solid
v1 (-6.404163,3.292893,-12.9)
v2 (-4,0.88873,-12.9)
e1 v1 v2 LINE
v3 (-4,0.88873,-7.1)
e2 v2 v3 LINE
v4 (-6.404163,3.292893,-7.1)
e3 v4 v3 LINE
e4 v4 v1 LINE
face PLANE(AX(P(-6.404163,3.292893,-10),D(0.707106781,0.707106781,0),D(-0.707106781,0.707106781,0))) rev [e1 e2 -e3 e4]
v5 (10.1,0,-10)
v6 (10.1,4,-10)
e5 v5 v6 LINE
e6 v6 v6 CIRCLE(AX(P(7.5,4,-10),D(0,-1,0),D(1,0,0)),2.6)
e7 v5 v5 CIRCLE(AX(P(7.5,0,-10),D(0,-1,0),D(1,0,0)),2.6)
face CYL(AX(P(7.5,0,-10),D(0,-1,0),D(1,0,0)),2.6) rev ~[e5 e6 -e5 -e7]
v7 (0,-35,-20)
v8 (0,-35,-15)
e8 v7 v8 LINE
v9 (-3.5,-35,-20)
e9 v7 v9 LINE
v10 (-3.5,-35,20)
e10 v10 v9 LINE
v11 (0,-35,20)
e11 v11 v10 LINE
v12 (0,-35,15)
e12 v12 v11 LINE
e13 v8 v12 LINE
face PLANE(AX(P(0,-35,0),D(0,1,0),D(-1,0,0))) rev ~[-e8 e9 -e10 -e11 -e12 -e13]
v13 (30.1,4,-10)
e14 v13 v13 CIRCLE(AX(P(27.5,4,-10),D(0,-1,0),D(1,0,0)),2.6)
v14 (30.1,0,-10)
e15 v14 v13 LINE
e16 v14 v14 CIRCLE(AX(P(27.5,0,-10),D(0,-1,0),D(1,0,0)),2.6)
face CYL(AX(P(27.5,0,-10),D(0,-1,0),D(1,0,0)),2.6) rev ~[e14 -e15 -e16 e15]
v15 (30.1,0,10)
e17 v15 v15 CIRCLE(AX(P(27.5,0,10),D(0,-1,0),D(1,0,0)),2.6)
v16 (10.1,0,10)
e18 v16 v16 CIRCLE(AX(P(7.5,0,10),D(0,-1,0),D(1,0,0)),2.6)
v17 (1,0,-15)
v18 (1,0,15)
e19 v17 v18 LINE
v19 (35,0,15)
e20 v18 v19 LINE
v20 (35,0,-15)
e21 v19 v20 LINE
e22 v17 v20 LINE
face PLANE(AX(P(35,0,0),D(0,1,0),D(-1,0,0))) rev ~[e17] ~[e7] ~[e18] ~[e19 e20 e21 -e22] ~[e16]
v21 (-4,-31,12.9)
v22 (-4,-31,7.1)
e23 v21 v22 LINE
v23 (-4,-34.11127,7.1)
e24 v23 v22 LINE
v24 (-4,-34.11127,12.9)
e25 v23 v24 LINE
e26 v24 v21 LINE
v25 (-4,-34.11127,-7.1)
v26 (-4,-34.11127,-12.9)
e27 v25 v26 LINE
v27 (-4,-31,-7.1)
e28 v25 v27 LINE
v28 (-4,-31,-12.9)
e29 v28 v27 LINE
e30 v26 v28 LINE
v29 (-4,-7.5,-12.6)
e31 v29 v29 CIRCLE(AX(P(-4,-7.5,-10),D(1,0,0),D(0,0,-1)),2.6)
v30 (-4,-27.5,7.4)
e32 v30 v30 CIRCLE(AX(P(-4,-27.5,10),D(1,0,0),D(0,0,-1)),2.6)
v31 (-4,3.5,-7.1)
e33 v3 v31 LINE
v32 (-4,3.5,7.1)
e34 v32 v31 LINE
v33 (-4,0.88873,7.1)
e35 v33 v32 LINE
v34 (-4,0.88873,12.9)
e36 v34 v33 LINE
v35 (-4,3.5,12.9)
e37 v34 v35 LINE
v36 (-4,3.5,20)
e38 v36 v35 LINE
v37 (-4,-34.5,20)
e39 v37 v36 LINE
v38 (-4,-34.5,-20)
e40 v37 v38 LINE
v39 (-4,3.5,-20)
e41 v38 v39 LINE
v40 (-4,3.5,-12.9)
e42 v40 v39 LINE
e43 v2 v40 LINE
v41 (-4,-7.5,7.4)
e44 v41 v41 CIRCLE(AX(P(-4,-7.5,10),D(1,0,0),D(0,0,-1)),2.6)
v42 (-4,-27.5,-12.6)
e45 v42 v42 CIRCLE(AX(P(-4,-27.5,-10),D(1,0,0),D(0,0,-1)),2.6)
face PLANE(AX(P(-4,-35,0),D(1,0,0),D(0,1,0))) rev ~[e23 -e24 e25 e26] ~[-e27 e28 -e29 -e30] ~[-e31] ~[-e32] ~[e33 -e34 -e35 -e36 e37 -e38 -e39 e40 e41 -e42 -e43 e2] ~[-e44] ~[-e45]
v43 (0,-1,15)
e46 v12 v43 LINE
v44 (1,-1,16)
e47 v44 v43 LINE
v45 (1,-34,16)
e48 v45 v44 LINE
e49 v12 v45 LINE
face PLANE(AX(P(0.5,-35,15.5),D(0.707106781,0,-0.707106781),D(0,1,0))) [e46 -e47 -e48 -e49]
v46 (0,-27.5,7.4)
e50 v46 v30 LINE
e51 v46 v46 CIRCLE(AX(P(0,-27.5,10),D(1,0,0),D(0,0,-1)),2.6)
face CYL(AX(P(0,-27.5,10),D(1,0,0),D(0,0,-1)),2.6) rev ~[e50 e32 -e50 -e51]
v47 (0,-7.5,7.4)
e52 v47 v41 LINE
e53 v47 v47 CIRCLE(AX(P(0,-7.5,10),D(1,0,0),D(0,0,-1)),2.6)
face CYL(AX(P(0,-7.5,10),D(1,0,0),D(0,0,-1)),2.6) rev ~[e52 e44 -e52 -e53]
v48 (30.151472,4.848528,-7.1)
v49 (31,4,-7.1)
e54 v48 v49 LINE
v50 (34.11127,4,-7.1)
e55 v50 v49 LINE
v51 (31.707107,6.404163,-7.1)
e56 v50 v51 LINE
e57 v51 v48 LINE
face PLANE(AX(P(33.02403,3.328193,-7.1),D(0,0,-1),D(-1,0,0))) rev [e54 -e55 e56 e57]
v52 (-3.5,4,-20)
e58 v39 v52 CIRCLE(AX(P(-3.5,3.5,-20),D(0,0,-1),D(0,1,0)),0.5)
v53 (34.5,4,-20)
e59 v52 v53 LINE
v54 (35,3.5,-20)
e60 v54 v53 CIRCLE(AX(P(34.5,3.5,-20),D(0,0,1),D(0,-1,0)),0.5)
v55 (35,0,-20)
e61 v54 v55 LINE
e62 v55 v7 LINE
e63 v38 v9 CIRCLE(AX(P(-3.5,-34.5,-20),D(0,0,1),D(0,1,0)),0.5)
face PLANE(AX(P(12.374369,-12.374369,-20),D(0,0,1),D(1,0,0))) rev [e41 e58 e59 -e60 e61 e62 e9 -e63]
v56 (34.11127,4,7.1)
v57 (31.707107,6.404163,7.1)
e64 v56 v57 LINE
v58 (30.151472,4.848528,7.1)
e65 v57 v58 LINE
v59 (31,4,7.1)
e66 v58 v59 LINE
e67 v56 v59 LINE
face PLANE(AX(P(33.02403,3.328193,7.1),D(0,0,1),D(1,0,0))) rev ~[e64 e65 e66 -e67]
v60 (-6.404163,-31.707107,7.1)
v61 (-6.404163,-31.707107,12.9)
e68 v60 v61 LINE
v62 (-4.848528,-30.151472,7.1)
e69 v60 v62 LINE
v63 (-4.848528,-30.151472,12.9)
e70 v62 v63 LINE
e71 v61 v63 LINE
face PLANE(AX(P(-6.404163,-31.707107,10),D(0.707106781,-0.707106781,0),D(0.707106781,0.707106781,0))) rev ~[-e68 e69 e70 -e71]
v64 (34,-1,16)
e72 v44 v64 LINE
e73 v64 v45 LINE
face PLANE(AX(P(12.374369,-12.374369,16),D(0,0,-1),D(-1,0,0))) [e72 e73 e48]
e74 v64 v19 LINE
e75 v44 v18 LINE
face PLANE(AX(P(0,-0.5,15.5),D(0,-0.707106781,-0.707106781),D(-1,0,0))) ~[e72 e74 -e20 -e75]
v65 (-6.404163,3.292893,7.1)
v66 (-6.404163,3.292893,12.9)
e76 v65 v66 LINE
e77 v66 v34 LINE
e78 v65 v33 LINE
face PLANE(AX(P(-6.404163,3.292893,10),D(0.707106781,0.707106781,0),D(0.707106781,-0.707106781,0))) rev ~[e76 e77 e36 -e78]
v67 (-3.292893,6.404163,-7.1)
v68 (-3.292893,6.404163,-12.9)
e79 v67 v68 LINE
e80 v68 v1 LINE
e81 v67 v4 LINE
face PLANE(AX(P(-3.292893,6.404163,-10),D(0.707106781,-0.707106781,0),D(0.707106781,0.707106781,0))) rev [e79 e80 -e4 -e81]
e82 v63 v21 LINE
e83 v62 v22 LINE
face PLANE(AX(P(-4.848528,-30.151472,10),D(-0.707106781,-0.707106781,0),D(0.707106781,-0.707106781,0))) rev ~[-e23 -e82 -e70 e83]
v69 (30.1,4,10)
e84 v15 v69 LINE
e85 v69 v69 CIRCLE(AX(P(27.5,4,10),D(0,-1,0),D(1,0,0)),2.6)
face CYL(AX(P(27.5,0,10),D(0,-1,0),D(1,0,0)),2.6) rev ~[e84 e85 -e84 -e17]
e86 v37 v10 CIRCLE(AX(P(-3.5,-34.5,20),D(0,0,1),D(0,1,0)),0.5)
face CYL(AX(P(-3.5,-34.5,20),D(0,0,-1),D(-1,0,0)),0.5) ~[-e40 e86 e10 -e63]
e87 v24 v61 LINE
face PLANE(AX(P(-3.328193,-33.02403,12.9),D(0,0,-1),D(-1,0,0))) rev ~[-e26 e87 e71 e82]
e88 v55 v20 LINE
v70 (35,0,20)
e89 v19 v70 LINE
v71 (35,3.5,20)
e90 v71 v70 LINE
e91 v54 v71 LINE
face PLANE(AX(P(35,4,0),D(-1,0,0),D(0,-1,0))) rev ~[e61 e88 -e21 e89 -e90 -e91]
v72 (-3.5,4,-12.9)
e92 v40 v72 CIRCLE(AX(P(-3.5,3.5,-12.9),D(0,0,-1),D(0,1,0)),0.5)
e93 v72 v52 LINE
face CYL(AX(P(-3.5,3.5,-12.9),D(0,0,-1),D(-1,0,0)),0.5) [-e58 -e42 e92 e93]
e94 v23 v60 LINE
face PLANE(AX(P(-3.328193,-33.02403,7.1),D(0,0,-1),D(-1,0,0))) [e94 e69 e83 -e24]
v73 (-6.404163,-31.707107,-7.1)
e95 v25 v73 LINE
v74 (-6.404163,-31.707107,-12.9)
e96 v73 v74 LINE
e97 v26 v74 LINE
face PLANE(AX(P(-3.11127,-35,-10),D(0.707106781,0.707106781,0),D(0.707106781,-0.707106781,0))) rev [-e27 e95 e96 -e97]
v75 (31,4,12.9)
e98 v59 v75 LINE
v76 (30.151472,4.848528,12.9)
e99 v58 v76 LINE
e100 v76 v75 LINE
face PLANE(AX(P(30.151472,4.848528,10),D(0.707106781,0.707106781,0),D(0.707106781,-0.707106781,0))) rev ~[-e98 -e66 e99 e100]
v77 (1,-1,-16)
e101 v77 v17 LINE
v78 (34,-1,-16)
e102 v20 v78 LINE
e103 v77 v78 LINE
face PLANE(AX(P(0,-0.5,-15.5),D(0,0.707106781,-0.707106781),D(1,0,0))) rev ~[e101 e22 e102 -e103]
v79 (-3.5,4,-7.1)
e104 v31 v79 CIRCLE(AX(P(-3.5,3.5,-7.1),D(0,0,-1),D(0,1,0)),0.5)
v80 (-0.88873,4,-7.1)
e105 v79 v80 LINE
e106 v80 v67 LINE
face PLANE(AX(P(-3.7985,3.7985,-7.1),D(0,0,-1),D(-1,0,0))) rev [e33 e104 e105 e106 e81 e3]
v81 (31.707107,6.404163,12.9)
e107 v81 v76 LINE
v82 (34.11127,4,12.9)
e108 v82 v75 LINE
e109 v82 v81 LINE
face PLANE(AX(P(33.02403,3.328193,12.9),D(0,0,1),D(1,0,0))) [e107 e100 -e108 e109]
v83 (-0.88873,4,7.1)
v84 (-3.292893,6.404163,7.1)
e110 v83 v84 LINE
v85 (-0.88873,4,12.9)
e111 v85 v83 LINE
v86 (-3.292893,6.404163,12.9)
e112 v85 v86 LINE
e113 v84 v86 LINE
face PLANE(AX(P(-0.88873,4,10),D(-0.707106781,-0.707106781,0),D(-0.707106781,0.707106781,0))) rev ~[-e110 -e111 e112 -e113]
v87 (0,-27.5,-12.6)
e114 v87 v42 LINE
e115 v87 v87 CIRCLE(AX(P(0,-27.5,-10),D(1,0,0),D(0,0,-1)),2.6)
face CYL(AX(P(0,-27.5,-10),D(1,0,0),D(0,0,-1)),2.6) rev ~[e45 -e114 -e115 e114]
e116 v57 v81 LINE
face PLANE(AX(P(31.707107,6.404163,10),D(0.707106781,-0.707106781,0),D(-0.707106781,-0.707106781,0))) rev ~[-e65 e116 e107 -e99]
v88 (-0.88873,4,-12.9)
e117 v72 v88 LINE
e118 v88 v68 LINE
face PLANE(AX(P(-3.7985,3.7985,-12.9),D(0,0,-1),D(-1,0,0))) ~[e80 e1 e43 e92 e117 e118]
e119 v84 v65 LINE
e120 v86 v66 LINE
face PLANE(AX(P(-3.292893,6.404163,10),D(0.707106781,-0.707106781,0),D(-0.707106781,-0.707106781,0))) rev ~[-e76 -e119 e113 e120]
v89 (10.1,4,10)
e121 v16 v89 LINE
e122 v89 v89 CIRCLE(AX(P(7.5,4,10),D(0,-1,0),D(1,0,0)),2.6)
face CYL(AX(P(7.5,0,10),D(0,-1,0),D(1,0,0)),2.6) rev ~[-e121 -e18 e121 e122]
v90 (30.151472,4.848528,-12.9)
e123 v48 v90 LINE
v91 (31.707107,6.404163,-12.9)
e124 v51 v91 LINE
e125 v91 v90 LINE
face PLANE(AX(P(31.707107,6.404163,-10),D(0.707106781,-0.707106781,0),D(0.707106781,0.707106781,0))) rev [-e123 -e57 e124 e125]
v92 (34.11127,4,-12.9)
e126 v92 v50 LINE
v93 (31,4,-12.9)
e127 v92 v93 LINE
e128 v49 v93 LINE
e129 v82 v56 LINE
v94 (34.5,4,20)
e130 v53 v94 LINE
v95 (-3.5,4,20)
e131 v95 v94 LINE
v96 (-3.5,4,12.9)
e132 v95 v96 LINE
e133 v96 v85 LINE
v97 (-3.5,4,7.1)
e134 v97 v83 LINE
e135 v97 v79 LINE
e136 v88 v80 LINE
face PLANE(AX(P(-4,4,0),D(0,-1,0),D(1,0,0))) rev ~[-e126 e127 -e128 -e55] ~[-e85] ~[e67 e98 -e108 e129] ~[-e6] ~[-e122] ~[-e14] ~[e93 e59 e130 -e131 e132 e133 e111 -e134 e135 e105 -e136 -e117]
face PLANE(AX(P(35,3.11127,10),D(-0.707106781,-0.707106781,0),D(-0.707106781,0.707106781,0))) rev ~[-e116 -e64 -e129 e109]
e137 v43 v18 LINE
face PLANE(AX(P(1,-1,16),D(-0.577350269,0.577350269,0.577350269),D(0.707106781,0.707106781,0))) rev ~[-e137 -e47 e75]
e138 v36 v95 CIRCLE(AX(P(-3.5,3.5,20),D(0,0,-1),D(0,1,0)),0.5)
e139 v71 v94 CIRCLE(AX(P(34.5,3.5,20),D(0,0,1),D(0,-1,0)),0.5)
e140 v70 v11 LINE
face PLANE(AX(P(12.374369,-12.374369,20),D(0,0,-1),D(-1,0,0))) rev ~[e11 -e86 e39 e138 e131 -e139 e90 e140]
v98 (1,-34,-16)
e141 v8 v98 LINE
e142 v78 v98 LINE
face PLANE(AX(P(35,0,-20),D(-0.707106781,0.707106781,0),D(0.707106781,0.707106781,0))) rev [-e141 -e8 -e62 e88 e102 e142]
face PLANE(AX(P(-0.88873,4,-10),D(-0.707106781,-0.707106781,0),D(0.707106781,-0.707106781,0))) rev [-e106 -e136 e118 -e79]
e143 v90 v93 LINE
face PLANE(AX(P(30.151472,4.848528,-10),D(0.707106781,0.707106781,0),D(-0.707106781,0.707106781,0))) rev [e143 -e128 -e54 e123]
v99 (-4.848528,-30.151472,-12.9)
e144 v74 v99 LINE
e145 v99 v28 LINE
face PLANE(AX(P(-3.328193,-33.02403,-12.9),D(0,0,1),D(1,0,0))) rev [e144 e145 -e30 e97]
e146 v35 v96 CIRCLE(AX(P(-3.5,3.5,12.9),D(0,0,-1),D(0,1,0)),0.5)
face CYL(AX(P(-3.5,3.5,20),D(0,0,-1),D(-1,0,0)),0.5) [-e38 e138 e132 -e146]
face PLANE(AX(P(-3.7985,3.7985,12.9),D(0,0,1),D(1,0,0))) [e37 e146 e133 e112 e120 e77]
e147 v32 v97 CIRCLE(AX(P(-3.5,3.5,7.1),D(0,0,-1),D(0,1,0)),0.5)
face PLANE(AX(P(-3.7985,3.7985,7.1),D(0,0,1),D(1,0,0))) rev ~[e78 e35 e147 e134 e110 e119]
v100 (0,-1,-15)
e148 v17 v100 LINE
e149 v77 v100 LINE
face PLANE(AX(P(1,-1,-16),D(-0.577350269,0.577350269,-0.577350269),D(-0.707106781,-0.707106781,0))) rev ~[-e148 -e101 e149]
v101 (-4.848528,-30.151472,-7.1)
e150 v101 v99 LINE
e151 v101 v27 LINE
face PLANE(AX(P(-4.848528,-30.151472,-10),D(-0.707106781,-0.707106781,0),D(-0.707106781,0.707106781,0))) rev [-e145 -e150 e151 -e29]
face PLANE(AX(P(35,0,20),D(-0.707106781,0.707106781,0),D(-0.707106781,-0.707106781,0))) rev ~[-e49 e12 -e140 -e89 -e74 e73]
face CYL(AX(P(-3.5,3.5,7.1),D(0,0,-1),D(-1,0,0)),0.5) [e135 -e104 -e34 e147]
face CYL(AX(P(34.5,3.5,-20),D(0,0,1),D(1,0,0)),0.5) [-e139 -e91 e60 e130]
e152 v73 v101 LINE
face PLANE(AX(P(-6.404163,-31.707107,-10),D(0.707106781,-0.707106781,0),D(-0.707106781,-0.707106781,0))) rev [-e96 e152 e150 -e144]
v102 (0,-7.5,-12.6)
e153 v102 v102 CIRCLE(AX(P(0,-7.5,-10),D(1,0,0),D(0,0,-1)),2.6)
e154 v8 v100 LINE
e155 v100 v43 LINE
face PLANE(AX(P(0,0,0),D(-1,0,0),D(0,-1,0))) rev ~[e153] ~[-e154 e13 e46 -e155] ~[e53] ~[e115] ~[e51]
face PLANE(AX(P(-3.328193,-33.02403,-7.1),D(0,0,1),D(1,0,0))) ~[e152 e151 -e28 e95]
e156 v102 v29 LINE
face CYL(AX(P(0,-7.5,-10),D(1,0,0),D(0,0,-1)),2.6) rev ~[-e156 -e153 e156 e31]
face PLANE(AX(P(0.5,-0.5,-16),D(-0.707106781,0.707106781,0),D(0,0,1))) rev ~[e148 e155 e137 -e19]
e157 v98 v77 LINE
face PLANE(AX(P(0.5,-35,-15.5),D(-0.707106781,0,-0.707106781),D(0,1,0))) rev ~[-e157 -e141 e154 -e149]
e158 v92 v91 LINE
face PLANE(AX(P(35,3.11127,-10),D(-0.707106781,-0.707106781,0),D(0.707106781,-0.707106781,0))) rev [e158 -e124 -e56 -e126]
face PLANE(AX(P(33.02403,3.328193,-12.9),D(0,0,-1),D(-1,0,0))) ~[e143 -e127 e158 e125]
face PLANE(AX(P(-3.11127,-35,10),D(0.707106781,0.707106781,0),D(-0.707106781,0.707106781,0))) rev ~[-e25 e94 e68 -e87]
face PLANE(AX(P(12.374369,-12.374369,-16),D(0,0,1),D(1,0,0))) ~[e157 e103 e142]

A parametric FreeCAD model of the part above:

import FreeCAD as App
import Part
import Sketcher
from FreeCAD import Vector
Q = App.Units.Quantity


def edges_at(feature, points):
    """Names of the edges that pass closest to the given points."""
    edges = feature.Shape.Edges
    near = lambda p: min(range(len(edges)), key=lambda i: edges[i].distToShape(Part.Vertex(*p))[0])
    return sorted({f"Edge{near(p) + 1}" for p in points})

doc = App.newDocument("Part")
body = doc.addObject("PartDesign::Body", "Body")

sketch1 = body.newObject("Sketcher::SketchObject", "Sketch")
sketch1.AttachmentSupport = (doc.getObject("XY_Plane"), [""])
sketch1.MapMode = "FlatFace"
sketch1.addGeometry([
    Part.LineSegment(Vector(0, -35, 0), Vector(0, 0, 0)),
    Part.LineSegment(Vector(0, 0, 0), Vector(35, 0, 0)),
    Part.LineSegment(Vector(35, 0, 0), Vector(35, 4, 0)),
    Part.LineSegment(Vector(35, 4, 0), Vector(-4, 4, 0)),
    Part.LineSegment(Vector(-4, 4, 0), Vector(-4, -35, 0)),
    Part.LineSegment(Vector(-4, -35, 0), Vector(0, -35, 0)),
], False)
sketch1.addConstraint([
    Sketcher.Constraint("Coincident", 0, 2, 1, 1),
    Sketcher.Constraint("Coincident", 1, 2, 2, 1),
    Sketcher.Constraint("Coincident", 2, 2, 3, 1),
    Sketcher.Constraint("Coincident", 3, 2, 4, 1),
    Sketcher.Constraint("Coincident", 4, 2, 5, 1),
    Sketcher.Constraint("Coincident", 5, 2, 0, 1),
    Sketcher.Constraint("Vertical", 0),
    Sketcher.Constraint("Horizontal", 1),
    Sketcher.Constraint("Vertical", 2),
    Sketcher.Constraint("Horizontal", 3),
    Sketcher.Constraint("Vertical", 4),
    Sketcher.Constraint("Horizontal", 5),
    Sketcher.Constraint("Coincident", 0, 2, -1, 1),
    Sketcher.Constraint("Equal", 1, 0),
    Sketcher.Constraint("Equal", 5, 2),
    Sketcher.Constraint("DistanceX", 1, 1, 1, 2, Q("35 mm")),
    Sketcher.Constraint("DistanceX", 3, 2, 3, 1, Q("39 mm")),
])
pad1 = body.newObject("PartDesign::Pad", "Pad")
pad1.Profile = sketch1
pad1.Length = 40
pad1.Midplane = True

sketch2 = body.newObject("Sketcher::SketchObject", "Sketch001")
sketch2.AttachmentSupport = (doc.getObject("XY_Plane"), [""])
sketch2.MapMode = "FlatFace"
sketch2.AttachmentOffset = App.Placement(Vector(0, 0, 20), App.Rotation())
sketch2.addGeometry([
    Part.LineSegment(Vector(0, 0, 0), Vector(0, -35, 0)),
    Part.LineSegment(Vector(0, -35, 0), Vector(35, 0, 0)),
    Part.LineSegment(Vector(35, 0, 0), Vector(0, 0, 0)),
], False)
sketch2.addConstraint([
    Sketcher.Constraint("Coincident", 0, 2, 1, 1),
    Sketcher.Constraint("Coincident", 1, 2, 2, 1),
    Sketcher.Constraint("Coincident", 2, 2, 0, 1),
    Sketcher.Constraint("Vertical", 0),
    Sketcher.Constraint("Horizontal", 2),
    Sketcher.Constraint("Coincident", 2, 2, -1, 1),
    Sketcher.Constraint("Equal", 2, 0),
    Sketcher.Constraint("DistanceX", 2, 2, 2, 1, Q("35 mm")),
])
pad2 = body.newObject("PartDesign::Pad", "Pad001")
pad2.Profile = sketch2
pad2.Length = 4
pad2.Reversed = True
doc.recompute()

mirrored = body.newObject("PartDesign::Mirrored", "Mirrored")
mirrored.Originals = [pad2]
mirrored.MirrorPlane = (doc.getObject("XY_Plane"), [""])
body.Tip = mirrored

sketch3 = body.newObject("Sketcher::SketchObject", "Sketch002")
sketch3.AttachmentSupport = (doc.getObject("YZ_Plane"), [""])
sketch3.MapMode = "FlatFace"
sketch3.addGeometry([
    Part.Circle(Vector(-27.5, 10, 0), Vector(0, 0, 1), 2.6),
    Part.Circle(Vector(-27.5, -10, 0), Vector(0, 0, 1), 2.6),
    Part.Circle(Vector(-7.5, -10, 0), Vector(0, 0, 1), 2.6),
    Part.Circle(Vector(-7.5, 10, 0), Vector(0, 0, 1), 2.6),
], False)
sketch3.addConstraint([
    Sketcher.Constraint("Equal", 0, 1),
    Sketcher.Constraint("Equal", 1, 2),
    Sketcher.Constraint("Equal", 2, 3),
    Sketcher.Constraint("Symmetric", 0, 3, 1, 3, -1),
    Sketcher.Constraint("Symmetric", 2, 3, 3, 3, -1),
    Sketcher.Constraint("Horizontal", 1, 3, 2, 3),
    Sketcher.Constraint("Diameter", 0, Q("5.2 mm")),
    Sketcher.Constraint("DistanceY", -1, 1, 0, 3, Q("10 mm")),
    Sketcher.Constraint("DistanceX", 1, 3, 2, 3, Q("20 mm")),
    Sketcher.Constraint("DistanceX", 0, 3, -1, 1, Q("27.5 mm")),
])
pocket1 = body.newObject("PartDesign::Pocket", "Pocket")
pocket1.Profile = sketch3
pocket1.Type = "ThroughAll"

sketch4 = body.newObject("Sketcher::SketchObject", "Sketch003")
sketch4.AttachmentSupport = (doc.getObject("XZ_Plane"), [""])
sketch4.MapMode = "FlatFace"
sketch4.addGeometry([
    Part.Circle(Vector(27.5, -10, 0), Vector(0, 0, 1), 2.6),
    Part.Circle(Vector(7.5, -10, 0), Vector(0, 0, 1), 2.6),
    Part.Circle(Vector(7.5, 10, 0), Vector(0, 0, 1), 2.6),
    Part.Circle(Vector(27.5, 10, 0), Vector(0, 0, 1), 2.6),
], False)
sketch4.addConstraint([
    Sketcher.Constraint("Equal", 0, 1),
    Sketcher.Constraint("Equal", 1, 2),
    Sketcher.Constraint("Equal", 2, 3),
    Sketcher.Constraint("Symmetric", 1, 3, 2, 3, -1),
    Sketcher.Constraint("Symmetric", 0, 3, 3, 3, -1),
    Sketcher.Constraint("Horizontal", 0, 3, 1, 3),
    Sketcher.Constraint("Diameter", 0, Q("5.2 mm")),
    Sketcher.Constraint("DistanceY", 0, 3, -1, 1, Q("10 mm")),
    Sketcher.Constraint("DistanceX", 1, 3, 0, 3, Q("20 mm")),
    Sketcher.Constraint("DistanceX", -1, 1, 0, 3, Q("27.5 mm")),
])
pocket2 = body.newObject("PartDesign::Pocket", "Pocket001")
pocket2.Profile = sketch4
pocket2.Type = "ThroughAll"

sketch5 = body.newObject("Sketcher::SketchObject", "Sketch004")
sketch5.AttachmentSupport = (doc.getObject("XY_Plane"), [""])
sketch5.MapMode = "FlatFace"
sketch5.AttachmentOffset = App.Placement(Vector(0, 0, 10), App.Rotation())
sketch5.addGeometry([
    Part.LineSegment(Vector(-0.9, 4, 0), Vector(-3.3, 6.4, 0)),
    Part.LineSegment(Vector(-3.3, 6.4, 0), Vector(-6.4, 3.3, 0)),
    Part.LineSegment(Vector(-6.4, 3.3, 0), Vector(-4, 0.9, 0)),
    Part.LineSegment(Vector(-4, 0.9, 0), Vector(-4, 4, 0)),
    Part.LineSegment(Vector(-4, 4, 0), Vector(-0.9, 4, 0)),
    Part.LineSegment(Vector(35, 3.1, 0), Vector(31.7, 6.4, 0)),
    Part.LineSegment(Vector(31.7, 6.4, 0), Vector(30.2, 4.8, 0)),
    Part.LineSegment(Vector(30.2, 4.8, 0), Vector(35, 0, 0)),
    Part.LineSegment(Vector(35, 0, 0), Vector(35, 3.1, 0)),
    Part.LineSegment(Vector(0, -35, 0), Vector(-4.8, -30.2, 0)),
    Part.LineSegment(Vector(-4.8, -30.2, 0), Vector(-6.4, -31.7, 0)),
    Part.LineSegment(Vector(-6.4, -31.7, 0), Vector(-3.1, -35, 0)),
    Part.LineSegment(Vector(-3.1, -35, 0), Vector(0, -35, 0)),
], False)
sketch5.addConstraint([
    Sketcher.Constraint("Coincident", 0, 2, 1, 1),
    Sketcher.Constraint("Coincident", 1, 2, 2, 1),
    Sketcher.Constraint("Coincident", 2, 2, 3, 1),
    Sketcher.Constraint("Coincident", 3, 2, 4, 1),
    Sketcher.Constraint("Coincident", 4, 2, 0, 1),
    Sketcher.Constraint("Coincident", 5, 2, 6, 1),
    Sketcher.Constraint("Coincident", 6, 2, 7, 1),
    Sketcher.Constraint("Coincident", 7, 2, 8, 1),
    Sketcher.Constraint("Coincident", 8, 2, 5, 1),
    Sketcher.Constraint("Coincident", 9, 2, 10, 1),
    Sketcher.Constraint("Coincident", 10, 2, 11, 1),
    Sketcher.Constraint("Coincident", 11, 2, 12, 1),
    Sketcher.Constraint("Coincident", 12, 2, 9, 1),
    Sketcher.Constraint("Vertical", 3),
    Sketcher.Constraint("Horizontal", 4),
    Sketcher.Constraint("Vertical", 8),
    Sketcher.Constraint("Horizontal", 12),
    Sketcher.Constraint("PointOnObject", 7, 2, -1),
    Sketcher.Constraint("PointOnObject", 12, 2, -2),
    Sketcher.Constraint("Perpendicular", 0, 1),
    Sketcher.Constraint("Perpendicular", 1, 2),
    Sketcher.Constraint("Parallel", 2, 5),
    Sketcher.Constraint("Perpendicular", 5, 6),
    Sketcher.Constraint("Perpendicular", 6, 7),
    Sketcher.Constraint("Parallel", 7, 9),
    Sketcher.Constraint("Perpendicular", 9, 10),
    Sketcher.Constraint("Perpendicular", 10, 11),
    Sketcher.Constraint("Horizontal", 0, 2, 5, 2),
    Sketcher.Constraint("Vertical", 1, 2, 10, 2),
    Sketcher.Constraint("Equal", 4, 12),
    Sketcher.Constraint("Equal", 12, 3),
    Sketcher.Constraint("Equal", 3, 8),
    Sketcher.Constraint("Equal", 0, 2),
    Sketcher.Constraint("Equal", 7, 9),
    Sketcher.Constraint("DistanceX", 2, 2, -1, 1, Q("4 mm")),
    Sketcher.Constraint("DistanceX", -1, 1, 7, 2, Q("35 mm")),
    Sketcher.Constraint("DistanceY", 11, 2, -1, 1, Q("35 mm")),
    Sketcher.Constraint("Distance", 0, Q("3.4 mm")),
    Sketcher.Constraint("Distance", 1, Q("4.4 mm")),
])
pad3 = body.newObject("PartDesign::Pad", "Pad002")
pad3.Profile = sketch5
pad3.Length = 5.8
pad3.Midplane = True
doc.recompute()

mirrored2 = body.newObject("PartDesign::Mirrored", "Mirrored001")
mirrored2.Originals = [pad3]
mirrored2.MirrorPlane = (doc.getObject("XY_Plane"), [""])
body.Tip = mirrored2
doc.recompute()

fillet = body.newObject("PartDesign::Fillet", "Fillet")
fillet.Base = (mirrored2, edges_at(mirrored2, [
    (-4, -35, 0),
    (-4, 4, 16.45),
    (35, 4, 0),
    (-4, 4, -16.45),
    (-4, 4, 0),
]))
fillet.Radius = 0.5
doc.recompute()

chamfer = body.newObject("PartDesign::Chamfer", "Chamfer")
chamfer.Base = (fillet, edges_at(fillet, [
    (0, 0, 0),
    (0, -17.5, 16),
    (17.5, 0, 16),
    (17.5, 0, -16),
    (0, -17.5, -16),
]))
chamfer.Size = 1

doc.recompute()
